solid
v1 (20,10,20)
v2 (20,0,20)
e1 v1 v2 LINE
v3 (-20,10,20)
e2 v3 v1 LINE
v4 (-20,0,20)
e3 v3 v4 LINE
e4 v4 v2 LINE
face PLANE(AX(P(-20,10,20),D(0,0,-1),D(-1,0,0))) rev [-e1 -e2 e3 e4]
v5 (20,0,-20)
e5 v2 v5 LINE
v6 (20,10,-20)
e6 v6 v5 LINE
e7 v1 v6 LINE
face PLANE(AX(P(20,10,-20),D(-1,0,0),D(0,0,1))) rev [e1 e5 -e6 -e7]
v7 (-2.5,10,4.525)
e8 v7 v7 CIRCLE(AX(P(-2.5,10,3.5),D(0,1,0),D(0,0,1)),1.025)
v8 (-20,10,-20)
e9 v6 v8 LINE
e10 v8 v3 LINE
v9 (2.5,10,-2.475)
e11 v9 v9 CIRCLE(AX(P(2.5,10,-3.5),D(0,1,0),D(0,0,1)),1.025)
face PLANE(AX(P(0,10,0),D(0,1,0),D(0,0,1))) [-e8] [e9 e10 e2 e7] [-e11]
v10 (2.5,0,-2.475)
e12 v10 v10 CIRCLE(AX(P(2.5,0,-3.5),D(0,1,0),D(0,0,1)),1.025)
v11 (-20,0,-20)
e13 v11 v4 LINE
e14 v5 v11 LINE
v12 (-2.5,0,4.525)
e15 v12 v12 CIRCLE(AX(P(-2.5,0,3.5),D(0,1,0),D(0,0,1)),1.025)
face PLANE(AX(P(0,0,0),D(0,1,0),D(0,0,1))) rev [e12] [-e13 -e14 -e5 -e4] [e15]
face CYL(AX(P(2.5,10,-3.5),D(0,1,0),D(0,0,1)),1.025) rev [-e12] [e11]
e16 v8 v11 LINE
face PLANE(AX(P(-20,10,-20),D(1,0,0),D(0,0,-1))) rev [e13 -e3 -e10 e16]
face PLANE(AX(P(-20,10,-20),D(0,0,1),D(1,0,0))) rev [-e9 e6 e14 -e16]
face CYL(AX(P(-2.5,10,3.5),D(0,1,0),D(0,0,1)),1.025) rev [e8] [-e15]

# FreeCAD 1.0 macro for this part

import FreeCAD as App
import Part
import Sketcher
from FreeCAD import Vector


def add_polygon(sketch, points):
    """Adds a closed chain of lines whose ends are joined by coincident constraints."""
    first, n = sketch.GeometryCount, len(points)
    for a, b in zip(points, points[1:] + points[:1]):
        sketch.addGeometry(Part.LineSegment(App.Vector(*a, 0), App.Vector(*b, 0)), False)
    for i in range(n):
        sketch.addConstraint(Sketcher.Constraint("Coincident", first + i, 2, first + (i + 1) % n, 1))

doc = App.newDocument("Part")
body = doc.addObject("PartDesign::Body", "Body")

sketch1 = body.newObject("Sketcher::SketchObject", "Sketch")
sketch1.AttachmentSupport = (doc.getObject("XZ_Plane"), [""])
sketch1.MapMode = "FlatFace"
add_polygon(sketch1, [(-20, -20), (-20, 20), (20, 20), (20, -20)])
sketch1.addConstraint([
    Sketcher.Constraint("Vertical", 0),
    Sketcher.Constraint("Horizontal", 1),
    Sketcher.Constraint("Vertical", 2),
    Sketcher.Constraint("Horizontal", 3),
    Sketcher.Constraint("Symmetric", 0, 2, 2, 2, -1, 1),
    Sketcher.Constraint("Equal", 3, 0),
    Sketcher.Constraint("DistanceX", 1, 1, 1, 2, 40.0),
])
pad1 = body.newObject("PartDesign::Pad", "Pad")
pad1.Profile = sketch1
pad1.Length = 10
pad1.Reversed = True

sketch2 = body.newObject("Sketcher::SketchObject", "Sketch001")
sketch2.AttachmentSupport = (doc.getObject("XZ_Plane"), [""])
sketch2.MapMode = "FlatFace"
sketch2.AttachmentOffset = App.Placement(Vector(0, 0, -10), App.Rotation())
sketch2.addGeometry([
    Part.Circle(Vector(-2.5, 3.5, 0), Vector(0, 0, 1), 1),
    Part.Circle(Vector(2.5, -3.5, 0), Vector(0, 0, 1), 1),
], False)
sketch2.addConstraint([
    Sketcher.Constraint("Equal", 0, 1),
    Sketcher.Constraint("Symmetric", 0, 3, 1, 3, -1, 1),
    Sketcher.Constraint("Diameter", 0, 2.05),
    Sketcher.Constraint("DistanceX", 0, 3, 1, 3, 5.0),
    Sketcher.Constraint("DistanceY", 1, 3, 0, 3, 7.0),
])
doc.recompute()
hole = body.newObject("PartDesign::Hole", "Hole")
hole.Profile = sketch2
hole.ThreadType = "None"
hole.Diameter = 2.05
hole.DepthType = "ThroughAll"
hole.Reversed = True

doc.recompute()
